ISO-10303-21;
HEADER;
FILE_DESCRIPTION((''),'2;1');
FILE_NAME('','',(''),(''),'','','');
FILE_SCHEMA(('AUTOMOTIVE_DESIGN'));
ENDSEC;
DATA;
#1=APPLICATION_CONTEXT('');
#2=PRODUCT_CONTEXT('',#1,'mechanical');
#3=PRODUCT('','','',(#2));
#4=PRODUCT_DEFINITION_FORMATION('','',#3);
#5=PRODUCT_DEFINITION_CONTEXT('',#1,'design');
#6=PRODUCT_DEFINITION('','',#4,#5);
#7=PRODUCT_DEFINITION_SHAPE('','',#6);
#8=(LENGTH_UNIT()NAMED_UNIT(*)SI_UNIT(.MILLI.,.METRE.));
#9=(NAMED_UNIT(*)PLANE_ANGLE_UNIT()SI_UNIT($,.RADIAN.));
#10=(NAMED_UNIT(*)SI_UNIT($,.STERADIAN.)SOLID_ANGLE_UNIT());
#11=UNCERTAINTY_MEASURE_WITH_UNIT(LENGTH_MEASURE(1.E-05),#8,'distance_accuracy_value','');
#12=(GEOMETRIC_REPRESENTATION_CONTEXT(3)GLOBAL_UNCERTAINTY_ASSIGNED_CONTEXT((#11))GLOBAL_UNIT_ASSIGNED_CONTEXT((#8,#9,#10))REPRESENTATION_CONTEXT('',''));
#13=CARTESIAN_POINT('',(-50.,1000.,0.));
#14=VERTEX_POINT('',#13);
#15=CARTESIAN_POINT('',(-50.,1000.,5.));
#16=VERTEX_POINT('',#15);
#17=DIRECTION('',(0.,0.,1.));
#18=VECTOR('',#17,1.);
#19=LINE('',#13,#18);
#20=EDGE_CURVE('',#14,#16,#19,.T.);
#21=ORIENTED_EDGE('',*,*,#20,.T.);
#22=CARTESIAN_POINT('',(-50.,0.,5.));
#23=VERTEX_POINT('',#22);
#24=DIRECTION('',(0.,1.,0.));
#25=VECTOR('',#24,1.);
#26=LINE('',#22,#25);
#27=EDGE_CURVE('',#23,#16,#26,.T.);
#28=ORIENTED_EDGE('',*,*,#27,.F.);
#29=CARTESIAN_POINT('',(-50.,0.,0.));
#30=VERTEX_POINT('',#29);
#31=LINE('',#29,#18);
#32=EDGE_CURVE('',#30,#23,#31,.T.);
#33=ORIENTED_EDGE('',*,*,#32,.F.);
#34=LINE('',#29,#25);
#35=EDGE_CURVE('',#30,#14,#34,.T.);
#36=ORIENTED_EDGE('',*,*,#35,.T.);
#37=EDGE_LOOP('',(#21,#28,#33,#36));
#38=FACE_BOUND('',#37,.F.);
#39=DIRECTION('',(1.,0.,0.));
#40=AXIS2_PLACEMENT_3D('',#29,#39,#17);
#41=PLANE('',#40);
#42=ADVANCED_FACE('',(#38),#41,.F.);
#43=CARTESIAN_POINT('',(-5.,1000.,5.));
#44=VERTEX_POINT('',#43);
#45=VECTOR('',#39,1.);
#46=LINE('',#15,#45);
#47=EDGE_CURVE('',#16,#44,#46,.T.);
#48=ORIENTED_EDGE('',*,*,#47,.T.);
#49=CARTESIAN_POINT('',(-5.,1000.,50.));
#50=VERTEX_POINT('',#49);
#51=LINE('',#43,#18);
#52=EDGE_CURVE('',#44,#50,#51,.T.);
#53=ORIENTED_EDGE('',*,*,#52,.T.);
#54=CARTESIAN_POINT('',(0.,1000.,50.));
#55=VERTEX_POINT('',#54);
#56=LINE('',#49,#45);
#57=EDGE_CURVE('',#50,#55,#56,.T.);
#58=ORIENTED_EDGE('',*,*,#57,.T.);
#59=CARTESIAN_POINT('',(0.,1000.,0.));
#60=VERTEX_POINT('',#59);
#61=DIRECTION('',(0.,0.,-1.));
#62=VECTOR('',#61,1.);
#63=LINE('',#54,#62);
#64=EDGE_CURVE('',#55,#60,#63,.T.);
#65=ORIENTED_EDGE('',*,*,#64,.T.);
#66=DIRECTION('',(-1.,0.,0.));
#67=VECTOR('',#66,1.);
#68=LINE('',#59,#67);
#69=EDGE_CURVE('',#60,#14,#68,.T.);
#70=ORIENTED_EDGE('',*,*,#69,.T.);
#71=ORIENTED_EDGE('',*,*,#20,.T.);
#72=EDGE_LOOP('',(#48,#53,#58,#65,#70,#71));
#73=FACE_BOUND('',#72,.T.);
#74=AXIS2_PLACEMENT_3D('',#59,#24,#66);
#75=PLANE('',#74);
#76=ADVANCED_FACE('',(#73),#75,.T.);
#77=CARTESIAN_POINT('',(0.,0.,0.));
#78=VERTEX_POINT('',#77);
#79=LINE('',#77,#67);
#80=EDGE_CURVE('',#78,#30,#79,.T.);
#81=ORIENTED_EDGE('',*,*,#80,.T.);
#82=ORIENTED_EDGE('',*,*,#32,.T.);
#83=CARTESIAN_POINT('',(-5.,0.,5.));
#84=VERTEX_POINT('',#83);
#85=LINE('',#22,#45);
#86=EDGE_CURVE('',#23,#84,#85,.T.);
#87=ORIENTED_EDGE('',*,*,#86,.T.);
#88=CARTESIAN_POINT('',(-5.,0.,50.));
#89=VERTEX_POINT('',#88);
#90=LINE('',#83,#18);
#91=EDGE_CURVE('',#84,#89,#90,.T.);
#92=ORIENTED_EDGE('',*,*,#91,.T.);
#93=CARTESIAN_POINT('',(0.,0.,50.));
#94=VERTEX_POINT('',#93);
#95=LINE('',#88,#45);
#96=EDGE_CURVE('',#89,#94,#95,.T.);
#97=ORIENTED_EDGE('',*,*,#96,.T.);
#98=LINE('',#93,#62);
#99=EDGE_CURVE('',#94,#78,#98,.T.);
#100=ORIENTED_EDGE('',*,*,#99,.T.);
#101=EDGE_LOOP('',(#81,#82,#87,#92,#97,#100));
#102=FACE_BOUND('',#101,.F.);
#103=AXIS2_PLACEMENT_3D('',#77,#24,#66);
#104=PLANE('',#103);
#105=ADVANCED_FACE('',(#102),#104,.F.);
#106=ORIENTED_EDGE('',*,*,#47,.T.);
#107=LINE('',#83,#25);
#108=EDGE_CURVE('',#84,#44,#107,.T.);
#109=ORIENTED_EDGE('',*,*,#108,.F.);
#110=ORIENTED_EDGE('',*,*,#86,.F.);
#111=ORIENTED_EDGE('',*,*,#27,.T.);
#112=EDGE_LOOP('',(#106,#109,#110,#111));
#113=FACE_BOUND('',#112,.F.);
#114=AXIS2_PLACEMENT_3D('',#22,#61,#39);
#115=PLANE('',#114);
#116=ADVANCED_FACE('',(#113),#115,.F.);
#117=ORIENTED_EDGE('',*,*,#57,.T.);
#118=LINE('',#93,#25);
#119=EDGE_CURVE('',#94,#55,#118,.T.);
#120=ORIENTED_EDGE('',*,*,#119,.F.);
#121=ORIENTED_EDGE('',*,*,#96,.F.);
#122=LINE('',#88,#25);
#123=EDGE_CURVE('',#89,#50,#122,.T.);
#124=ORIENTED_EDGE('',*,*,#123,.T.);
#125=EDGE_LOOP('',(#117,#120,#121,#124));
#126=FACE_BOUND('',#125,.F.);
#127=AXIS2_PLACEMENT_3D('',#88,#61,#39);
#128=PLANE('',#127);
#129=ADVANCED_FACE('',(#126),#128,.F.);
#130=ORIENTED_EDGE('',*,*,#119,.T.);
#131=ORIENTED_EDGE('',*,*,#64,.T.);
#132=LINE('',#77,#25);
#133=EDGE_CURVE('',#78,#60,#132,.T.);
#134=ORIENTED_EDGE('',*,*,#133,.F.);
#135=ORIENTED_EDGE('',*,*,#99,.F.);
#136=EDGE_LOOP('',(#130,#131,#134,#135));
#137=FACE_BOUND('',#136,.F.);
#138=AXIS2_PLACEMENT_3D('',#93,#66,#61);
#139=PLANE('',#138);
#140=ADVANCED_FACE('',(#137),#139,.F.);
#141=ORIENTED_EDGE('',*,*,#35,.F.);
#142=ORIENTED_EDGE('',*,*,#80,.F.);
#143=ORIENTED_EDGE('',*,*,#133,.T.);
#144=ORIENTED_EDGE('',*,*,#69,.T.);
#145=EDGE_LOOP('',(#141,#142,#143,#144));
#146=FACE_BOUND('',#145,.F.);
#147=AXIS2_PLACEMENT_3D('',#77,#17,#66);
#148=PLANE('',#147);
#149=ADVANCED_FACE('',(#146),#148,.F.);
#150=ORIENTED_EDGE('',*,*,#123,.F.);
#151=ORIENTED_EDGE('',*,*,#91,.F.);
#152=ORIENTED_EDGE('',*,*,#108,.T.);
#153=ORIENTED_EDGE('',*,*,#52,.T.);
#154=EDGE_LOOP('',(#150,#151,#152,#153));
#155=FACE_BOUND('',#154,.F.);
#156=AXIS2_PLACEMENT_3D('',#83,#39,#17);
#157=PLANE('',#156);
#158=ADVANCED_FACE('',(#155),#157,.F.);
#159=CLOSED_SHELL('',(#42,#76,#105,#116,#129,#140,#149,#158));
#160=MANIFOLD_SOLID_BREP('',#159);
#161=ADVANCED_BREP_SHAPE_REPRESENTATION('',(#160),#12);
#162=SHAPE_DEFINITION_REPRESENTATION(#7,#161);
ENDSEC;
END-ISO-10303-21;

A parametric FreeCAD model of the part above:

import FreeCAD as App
import Part
import Sketcher

doc = App.newDocument("Part")
body = doc.addObject("PartDesign::Body", "Body")

# Sketch on XZ plane
sketch1 = doc.addObject("Sketcher::SketchObject", "Sketch")
body.addObject(sketch1)
sketch1.AttachmentSupport = (doc.XZ_Plane, [""])
sketch1.MapMode = "FlatFace"
sketch1.addGeometry([
    Part.LineSegment(App.Vector(-5, 50, 0), App.Vector(0, 50, 0)),  # 0
    Part.LineSegment(App.Vector(0, 50, 0), App.Vector(0, 0, 0)),  # 1
    Part.LineSegment(App.Vector(0, 0, 0), App.Vector(-50, 0, 0)),  # 2
    Part.LineSegment(App.Vector(-50, 0, 0), App.Vector(-50, 5, 0)),  # 3
    Part.LineSegment(App.Vector(-50, 5, 0), App.Vector(-5, 5, 0)),  # 4
    Part.LineSegment(App.Vector(-5, 5, 0), App.Vector(-5, 50, 0)),  # 5
], False)
sketch1.addConstraint([
    Sketcher.Constraint("Coincident", 0, 2, 1, 1),
    Sketcher.Constraint("Coincident", 1, 2, 2, 1),
    Sketcher.Constraint("Coincident", 2, 2, 3, 1),
    Sketcher.Constraint("Coincident", 3, 2, 4, 1),
    Sketcher.Constraint("Coincident", 4, 2, 5, 1),
    Sketcher.Constraint("Coincident", 5, 2, 0, 1),
    Sketcher.Constraint("Horizontal", 0),
    Sketcher.Constraint("Vertical", 1),
    Sketcher.Constraint("Horizontal", 2),
    Sketcher.Constraint("Vertical", 3),
    Sketcher.Constraint("Horizontal", 4),
    Sketcher.Constraint("Vertical", 5),
    Sketcher.Constraint("Coincident", 1, 2, -1, 1),
    Sketcher.Constraint("Equal", 2, 1),
    Sketcher.Constraint("Equal", 0, 3),
    Sketcher.Constraint("DistanceX", 0, 1, 0, 2, 5.0),
    Sketcher.Constraint("DistanceX", 2, 2, 2, 1, 50.0),
])
pad1 = doc.addObject("PartDesign::Pad", "Pad")
body.addObject(pad1)
pad1.Profile = sketch1
pad1.Length = 1000
pad1.Reversed = True

doc.recompute()
